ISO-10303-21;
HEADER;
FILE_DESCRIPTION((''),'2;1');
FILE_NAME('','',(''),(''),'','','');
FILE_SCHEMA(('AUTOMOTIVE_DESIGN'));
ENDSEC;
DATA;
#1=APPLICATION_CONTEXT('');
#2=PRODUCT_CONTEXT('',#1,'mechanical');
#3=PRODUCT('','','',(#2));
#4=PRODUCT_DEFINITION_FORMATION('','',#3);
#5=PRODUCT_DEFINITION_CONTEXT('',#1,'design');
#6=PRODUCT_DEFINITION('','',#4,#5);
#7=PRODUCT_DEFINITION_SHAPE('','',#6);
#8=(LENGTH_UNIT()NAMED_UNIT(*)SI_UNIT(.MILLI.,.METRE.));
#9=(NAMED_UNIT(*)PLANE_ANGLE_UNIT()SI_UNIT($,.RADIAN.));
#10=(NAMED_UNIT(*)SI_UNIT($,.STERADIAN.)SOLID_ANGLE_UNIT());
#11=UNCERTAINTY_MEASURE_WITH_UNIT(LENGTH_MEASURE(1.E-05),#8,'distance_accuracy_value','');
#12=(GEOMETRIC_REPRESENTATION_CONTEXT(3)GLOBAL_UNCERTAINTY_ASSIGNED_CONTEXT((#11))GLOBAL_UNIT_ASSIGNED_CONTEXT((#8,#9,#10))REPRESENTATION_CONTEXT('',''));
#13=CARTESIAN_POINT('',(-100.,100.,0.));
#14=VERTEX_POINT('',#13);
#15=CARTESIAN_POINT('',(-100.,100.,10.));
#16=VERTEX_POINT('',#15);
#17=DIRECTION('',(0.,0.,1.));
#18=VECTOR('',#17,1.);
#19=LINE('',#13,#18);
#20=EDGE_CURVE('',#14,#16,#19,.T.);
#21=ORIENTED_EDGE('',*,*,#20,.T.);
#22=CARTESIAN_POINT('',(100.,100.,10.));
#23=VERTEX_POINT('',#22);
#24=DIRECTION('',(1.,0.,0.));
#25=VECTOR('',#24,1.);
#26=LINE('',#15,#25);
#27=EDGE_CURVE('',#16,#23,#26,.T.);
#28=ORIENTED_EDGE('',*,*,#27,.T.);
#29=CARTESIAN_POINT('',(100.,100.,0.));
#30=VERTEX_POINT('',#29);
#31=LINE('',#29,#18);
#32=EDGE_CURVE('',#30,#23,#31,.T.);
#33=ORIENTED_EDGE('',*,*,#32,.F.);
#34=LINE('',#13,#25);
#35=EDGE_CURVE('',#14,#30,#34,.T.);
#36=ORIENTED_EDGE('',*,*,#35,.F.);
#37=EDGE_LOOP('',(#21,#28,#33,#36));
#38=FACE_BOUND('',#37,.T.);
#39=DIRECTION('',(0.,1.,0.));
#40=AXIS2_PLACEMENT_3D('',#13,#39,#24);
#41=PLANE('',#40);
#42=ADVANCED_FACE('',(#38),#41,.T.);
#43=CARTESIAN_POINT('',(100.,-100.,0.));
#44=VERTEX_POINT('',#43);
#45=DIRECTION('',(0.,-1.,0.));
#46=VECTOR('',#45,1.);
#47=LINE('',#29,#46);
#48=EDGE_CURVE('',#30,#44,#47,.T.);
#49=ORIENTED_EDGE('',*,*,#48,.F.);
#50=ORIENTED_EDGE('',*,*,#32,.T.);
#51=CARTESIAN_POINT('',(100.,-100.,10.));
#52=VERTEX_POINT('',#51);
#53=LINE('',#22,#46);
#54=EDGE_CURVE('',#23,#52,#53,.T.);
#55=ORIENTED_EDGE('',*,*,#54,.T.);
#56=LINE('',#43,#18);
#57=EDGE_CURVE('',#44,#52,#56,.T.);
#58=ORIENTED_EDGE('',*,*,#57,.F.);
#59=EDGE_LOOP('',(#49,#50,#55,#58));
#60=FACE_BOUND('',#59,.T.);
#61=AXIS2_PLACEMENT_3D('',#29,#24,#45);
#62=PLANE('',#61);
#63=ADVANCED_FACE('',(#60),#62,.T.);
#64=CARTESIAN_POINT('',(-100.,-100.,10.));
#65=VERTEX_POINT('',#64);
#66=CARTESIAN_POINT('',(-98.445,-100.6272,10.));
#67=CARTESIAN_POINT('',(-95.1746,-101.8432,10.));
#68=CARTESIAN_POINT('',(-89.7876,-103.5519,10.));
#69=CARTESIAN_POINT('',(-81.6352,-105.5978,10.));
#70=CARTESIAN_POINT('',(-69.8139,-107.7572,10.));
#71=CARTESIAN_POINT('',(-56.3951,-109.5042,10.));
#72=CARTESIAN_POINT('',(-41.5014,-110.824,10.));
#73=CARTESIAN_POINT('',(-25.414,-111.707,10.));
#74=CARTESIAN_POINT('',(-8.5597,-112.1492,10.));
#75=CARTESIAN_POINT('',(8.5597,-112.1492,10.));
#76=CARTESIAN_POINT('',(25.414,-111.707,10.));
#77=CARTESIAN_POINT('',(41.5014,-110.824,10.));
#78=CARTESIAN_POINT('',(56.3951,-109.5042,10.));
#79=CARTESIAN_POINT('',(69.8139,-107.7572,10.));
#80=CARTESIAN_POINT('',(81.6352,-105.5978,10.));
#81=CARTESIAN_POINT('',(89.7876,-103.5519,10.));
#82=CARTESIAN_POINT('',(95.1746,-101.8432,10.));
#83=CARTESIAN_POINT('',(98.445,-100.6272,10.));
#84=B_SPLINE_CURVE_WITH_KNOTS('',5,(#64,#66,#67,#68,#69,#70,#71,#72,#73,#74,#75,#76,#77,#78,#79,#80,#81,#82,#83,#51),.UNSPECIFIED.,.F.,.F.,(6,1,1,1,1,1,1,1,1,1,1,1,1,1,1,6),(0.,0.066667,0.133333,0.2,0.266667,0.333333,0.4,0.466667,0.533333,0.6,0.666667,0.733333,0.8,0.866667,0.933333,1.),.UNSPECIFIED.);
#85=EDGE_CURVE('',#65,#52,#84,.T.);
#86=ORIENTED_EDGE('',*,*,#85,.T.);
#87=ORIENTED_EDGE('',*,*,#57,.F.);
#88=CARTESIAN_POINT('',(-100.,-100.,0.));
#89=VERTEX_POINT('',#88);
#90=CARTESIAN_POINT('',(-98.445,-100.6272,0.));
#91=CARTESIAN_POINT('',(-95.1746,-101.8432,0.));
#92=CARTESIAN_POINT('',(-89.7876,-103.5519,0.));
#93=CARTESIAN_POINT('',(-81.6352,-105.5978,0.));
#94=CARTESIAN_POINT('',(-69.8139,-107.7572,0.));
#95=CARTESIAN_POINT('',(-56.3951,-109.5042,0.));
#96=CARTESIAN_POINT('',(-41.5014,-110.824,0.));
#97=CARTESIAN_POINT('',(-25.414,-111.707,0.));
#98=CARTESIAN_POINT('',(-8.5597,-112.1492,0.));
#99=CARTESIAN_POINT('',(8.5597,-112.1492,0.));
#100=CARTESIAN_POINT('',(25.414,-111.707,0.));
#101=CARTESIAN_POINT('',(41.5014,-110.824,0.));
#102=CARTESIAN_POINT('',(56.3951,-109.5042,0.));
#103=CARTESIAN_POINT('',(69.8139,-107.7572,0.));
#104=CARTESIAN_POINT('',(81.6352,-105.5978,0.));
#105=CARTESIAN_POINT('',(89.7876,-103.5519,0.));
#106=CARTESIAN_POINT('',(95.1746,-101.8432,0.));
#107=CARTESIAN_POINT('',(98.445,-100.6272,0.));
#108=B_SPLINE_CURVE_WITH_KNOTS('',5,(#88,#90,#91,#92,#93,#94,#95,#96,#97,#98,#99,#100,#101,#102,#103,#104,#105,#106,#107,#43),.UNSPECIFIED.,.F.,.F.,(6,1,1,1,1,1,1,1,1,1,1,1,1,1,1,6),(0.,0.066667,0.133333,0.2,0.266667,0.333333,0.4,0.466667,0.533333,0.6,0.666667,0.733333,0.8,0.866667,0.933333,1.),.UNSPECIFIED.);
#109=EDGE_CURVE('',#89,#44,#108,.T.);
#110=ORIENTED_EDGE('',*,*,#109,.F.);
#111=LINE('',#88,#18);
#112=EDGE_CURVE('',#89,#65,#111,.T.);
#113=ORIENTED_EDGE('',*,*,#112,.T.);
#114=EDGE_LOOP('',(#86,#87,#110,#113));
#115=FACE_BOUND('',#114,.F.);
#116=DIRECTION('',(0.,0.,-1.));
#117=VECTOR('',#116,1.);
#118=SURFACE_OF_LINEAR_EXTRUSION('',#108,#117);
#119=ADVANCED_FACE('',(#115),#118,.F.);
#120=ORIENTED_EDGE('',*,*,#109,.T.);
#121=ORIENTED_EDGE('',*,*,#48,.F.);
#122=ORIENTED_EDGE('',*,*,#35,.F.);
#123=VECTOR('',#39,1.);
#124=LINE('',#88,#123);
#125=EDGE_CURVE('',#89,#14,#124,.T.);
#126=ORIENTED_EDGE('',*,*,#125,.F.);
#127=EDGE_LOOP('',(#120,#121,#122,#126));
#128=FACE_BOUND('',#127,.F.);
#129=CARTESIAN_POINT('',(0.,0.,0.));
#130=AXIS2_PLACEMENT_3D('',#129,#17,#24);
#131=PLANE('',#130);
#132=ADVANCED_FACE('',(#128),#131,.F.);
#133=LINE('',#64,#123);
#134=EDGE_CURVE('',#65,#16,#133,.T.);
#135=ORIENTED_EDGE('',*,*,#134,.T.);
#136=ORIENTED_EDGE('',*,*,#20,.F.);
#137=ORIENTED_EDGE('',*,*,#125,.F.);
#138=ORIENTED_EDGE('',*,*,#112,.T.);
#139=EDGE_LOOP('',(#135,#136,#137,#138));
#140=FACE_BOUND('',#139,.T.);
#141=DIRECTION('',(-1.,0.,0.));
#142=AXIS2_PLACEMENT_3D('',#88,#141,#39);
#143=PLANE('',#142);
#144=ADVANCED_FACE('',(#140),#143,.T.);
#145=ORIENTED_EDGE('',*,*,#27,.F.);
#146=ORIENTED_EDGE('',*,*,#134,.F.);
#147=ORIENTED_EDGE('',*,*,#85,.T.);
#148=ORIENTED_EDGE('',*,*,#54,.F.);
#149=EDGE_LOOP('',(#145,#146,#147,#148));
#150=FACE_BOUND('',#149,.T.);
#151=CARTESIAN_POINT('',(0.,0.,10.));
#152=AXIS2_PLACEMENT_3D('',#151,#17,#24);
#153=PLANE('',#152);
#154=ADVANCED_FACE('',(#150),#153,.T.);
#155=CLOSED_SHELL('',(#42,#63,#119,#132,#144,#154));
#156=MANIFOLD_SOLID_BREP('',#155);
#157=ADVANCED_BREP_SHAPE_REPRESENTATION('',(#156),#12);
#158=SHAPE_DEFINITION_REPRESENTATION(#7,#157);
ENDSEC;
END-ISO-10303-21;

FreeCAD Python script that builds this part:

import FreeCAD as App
import Part
import Sketcher

V = App.Vector
Q = App.Units.Quantity

doc = App.newDocument("Part")
body = doc.addObject("PartDesign::Body", "Body")

sketch1 = body.newObject("Sketcher::SketchObject", "Sketch")
sketch1.AttachmentSupport = (doc.getObject("XY_Plane"), [""])
sketch1.MapMode = "FlatFace"
sketch1.addGeometry([
    Part.LineSegment(V(100, 100, 0), V(-100, 100, 0)),
    Part.LineSegment(V(-100, 100, 0), V(-100, -100, 0)),
    Part.BSplineCurve([V(-100, -100, 0), V(-98.445, -100.6272, 0), V(-95.1746, -101.8432, 0), V(-89.7876, -103.5519, 0), V(-81.6352, -105.5978, 0), V(-69.8139, -107.7572, 0), V(-56.3951, -109.5042, 0), V(-41.5014, -110.824, 0), V(-25.414, -111.707, 0), V(-8.5597, -112.1492, 0), V(8.5597, -112.1492, 0), V(25.414, -111.707, 0), V(41.5014, -110.824, 0), V(56.3951, -109.5042, 0), V(69.8139, -107.7572, 0), V(81.6352, -105.5978, 0), V(89.7876, -103.5519, 0), V(95.1746, -101.8432, 0), V(98.445, -100.6272, 0), V(100, -100, 0)], [6, 1, 1, 1, 1, 1, 1, 1, 1, 1, 1, 1, 1, 1, 1, 6], [0, 0.066667, 0.133333, 0.2, 0.266667, 0.333333, 0.4, 0.466667, 0.533333, 0.6, 0.666667, 0.733333, 0.8, 0.866667, 0.933333, 1], False, 5, [1, 1, 1, 1, 1, 1, 1, 1, 1, 1, 1, 1, 1, 1, 1, 1, 1, 1, 1, 1], False),
    Part.LineSegment(V(100, -100, 0), V(100, 100, 0)),
], False)
sketch1.addConstraint([
    Sketcher.Constraint("Block", 2),
    Sketcher.Constraint("Coincident", 0, 2, 1, 1),
    Sketcher.Constraint("Coincident", 1, 2, 2, 1),
    Sketcher.Constraint("Coincident", 2, 2, 3, 1),
    Sketcher.Constraint("Coincident", 3, 2, 0, 1),
    Sketcher.Constraint("Horizontal", 0),
    Sketcher.Constraint("Vertical", 1),
    Sketcher.Constraint("Vertical", 3),
    Sketcher.Constraint("DistanceY", 1, 2, 1, 1, Q("200 mm")),
])
pad1 = body.newObject("PartDesign::Pad", "Pad")
pad1.Profile = sketch1
pad1.Length = 10

doc.recompute()
